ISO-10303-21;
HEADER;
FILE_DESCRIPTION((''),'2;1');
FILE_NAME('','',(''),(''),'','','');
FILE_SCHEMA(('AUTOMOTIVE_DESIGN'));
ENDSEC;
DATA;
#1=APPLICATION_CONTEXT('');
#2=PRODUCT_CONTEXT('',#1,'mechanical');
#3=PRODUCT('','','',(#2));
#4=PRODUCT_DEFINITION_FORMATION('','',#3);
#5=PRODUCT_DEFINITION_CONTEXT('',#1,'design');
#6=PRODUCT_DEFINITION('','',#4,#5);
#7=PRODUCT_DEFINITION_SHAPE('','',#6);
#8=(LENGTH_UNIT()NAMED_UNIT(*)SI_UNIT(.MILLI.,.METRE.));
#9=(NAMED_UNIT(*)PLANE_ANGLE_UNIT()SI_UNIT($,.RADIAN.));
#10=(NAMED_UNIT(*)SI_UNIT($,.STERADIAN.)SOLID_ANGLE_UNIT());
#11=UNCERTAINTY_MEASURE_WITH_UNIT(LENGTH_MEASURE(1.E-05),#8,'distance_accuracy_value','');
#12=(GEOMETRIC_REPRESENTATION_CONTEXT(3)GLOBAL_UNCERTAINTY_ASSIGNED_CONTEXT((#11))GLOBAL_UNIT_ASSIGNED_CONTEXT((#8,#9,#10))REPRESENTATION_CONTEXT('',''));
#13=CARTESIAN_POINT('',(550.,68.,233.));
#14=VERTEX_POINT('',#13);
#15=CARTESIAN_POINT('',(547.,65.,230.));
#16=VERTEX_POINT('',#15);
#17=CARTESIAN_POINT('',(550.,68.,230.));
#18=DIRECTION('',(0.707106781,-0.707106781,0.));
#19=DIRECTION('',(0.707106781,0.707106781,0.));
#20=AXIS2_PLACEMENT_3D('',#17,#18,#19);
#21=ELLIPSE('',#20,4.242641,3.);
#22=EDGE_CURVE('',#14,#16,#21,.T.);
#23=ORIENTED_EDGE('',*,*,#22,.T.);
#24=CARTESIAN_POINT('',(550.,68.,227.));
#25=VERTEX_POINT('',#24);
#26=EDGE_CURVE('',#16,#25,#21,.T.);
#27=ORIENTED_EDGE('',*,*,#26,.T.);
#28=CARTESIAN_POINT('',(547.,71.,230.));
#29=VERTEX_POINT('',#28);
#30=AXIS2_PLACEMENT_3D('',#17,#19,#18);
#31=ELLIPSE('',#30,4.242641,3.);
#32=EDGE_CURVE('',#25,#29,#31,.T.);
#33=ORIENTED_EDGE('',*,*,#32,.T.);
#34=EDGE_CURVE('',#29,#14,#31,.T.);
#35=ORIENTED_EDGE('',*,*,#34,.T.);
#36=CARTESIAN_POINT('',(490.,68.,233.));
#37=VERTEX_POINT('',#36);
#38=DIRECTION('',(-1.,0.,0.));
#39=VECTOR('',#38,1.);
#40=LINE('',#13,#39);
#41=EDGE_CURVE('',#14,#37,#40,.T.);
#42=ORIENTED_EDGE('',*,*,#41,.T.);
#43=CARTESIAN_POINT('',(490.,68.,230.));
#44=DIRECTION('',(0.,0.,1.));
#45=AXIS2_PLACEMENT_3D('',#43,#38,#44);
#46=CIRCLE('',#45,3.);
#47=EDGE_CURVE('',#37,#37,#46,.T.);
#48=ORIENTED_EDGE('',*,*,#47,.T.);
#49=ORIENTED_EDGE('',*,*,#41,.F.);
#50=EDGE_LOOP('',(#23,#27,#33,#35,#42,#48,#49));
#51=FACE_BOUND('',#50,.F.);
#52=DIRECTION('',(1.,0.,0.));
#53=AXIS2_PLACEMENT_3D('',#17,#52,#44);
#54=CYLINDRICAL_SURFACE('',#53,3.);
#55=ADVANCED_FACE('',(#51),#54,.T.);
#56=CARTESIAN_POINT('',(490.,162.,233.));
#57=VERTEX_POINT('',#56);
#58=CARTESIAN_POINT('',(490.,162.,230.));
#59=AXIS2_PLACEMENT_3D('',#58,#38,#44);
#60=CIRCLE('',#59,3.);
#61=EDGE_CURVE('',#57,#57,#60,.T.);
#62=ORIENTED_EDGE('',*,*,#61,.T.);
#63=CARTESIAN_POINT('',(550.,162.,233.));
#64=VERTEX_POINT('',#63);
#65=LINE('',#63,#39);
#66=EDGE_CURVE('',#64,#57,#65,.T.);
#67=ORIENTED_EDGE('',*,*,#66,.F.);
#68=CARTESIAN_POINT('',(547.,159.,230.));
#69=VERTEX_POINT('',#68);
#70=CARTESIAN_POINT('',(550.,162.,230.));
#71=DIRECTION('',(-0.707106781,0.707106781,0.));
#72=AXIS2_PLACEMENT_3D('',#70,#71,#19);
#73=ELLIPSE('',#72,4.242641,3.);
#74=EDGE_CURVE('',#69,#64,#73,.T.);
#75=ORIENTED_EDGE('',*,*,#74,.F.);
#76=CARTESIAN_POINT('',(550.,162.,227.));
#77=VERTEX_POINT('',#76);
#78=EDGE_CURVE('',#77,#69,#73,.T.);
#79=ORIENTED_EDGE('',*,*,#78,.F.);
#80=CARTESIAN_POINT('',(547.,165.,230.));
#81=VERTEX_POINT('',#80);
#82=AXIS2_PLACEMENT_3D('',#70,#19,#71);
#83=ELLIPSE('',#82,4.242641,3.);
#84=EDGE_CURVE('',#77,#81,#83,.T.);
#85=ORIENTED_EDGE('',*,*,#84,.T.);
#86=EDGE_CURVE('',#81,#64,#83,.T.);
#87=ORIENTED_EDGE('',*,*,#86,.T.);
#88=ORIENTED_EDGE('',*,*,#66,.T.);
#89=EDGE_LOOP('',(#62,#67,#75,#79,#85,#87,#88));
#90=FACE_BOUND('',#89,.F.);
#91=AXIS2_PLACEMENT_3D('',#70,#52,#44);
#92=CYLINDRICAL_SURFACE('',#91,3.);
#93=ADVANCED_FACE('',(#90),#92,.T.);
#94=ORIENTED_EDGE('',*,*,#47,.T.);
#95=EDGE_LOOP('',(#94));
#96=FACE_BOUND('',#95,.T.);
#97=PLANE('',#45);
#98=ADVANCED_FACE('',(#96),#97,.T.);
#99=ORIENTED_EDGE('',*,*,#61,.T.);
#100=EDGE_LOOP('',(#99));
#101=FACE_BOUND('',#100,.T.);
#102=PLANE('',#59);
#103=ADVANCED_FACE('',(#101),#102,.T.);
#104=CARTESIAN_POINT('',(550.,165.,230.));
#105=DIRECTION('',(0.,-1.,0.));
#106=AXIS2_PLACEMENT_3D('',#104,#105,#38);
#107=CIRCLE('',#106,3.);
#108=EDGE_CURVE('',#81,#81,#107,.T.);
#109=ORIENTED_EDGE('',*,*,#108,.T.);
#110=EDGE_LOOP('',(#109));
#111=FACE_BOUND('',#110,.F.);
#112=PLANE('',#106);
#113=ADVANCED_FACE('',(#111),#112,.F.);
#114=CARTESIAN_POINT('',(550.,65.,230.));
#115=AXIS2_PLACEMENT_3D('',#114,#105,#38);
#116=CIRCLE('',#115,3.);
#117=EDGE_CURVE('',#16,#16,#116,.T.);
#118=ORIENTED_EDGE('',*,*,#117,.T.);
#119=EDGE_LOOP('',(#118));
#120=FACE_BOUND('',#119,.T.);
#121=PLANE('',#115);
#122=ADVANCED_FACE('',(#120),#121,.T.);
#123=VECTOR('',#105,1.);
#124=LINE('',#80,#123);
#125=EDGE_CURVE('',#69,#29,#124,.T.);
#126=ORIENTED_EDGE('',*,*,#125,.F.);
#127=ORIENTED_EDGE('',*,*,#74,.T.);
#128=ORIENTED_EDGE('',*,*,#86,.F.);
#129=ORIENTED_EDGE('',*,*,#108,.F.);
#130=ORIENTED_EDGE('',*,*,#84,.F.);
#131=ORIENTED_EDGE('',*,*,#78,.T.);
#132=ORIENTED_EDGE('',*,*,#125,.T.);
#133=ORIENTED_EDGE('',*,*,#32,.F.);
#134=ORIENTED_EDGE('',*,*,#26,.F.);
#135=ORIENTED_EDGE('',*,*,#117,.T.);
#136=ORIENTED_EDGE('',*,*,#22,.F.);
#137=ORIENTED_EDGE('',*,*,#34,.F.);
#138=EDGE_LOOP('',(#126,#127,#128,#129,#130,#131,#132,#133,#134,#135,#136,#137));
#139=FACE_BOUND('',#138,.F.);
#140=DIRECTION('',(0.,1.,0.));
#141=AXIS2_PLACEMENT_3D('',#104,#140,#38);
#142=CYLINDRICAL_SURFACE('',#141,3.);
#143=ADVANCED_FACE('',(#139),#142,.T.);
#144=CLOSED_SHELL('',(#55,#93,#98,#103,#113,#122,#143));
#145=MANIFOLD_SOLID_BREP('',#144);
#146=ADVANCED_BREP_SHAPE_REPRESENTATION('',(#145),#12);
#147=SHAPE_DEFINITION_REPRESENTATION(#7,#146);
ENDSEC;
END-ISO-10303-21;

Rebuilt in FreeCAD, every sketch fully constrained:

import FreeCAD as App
import Part
import Sketcher
from FreeCAD import Vector

doc = App.newDocument("Part")
body = doc.addObject("PartDesign::Body", "Body")

# Sketch on XY plane
sketch1 = body.newObject("Sketcher::SketchObject", "Sketch")
sketch1.AttachmentSupport = (doc.getObject("XY_Plane"), [""])
sketch1.MapMode = "FlatFace"
sketch1.addGeometry(Part.Circle(Vector(0, 0, 0), Vector(0, 0, 1), 3), False)
sketch1.addConstraint([
    Sketcher.Constraint("Coincident", 0, 3, -1, 1),
    Sketcher.Constraint("Diameter", 0, 6.0),
])
pad1 = body.newObject("PartDesign::Pad", "Pad")
pad1.Profile = sketch1
pad1.Length = 60
body2 = doc.addObject("PartDesign::Body", "Body001")
doc.recompute()

body.Placement = App.Placement(Vector(0, 0, 0), App.Rotation(Vector(0, 1, 0), 90))
boolean = body2.newObject("PartDesign::Boolean", "Boolean")
boolean.Type = "Fuse"
boolean.addObjects([body])
body3 = doc.addObject("PartDesign::Body", "Body002")
doc.recompute()

body2.Placement = App.Placement(Vector(-50, -3, 0), App.Rotation(Vector(0, 0, 1), 0))
boolean2 = body3.newObject("PartDesign::Boolean", "Boolean001")
boolean2.Type = "Fuse"
boolean2.addObjects([body2])
body4 = doc.addObject("PartDesign::Body", "Body003")

# Sketch on XY plane
sketch2 = body4.newObject("Sketcher::SketchObject", "Sketch001")
sketch2.AttachmentSupport = (doc.getObject("XY_Plane003"), [""])
sketch2.MapMode = "FlatFace"
sketch2.addGeometry(Part.Circle(Vector(0, 0, 0), Vector(0, 0, 1), 3), False)
sketch2.addConstraint([
    Sketcher.Constraint("Coincident", 0, 3, -1, 1),
    Sketcher.Constraint("Diameter", 0, 6.0),
])
pad2 = body4.newObject("PartDesign::Pad", "Pad001")
pad2.Profile = sketch2
pad2.Length = 100
body5 = doc.addObject("PartDesign::Body", "Body004")
doc.recompute()

body4.Placement = App.Placement(Vector(0, 0, 0), App.Rotation(Vector(1, 0, 0), 90))
boolean3 = body5.newObject("PartDesign::Boolean", "Boolean002")
boolean3.Type = "Fuse"
boolean3.addObjects([body4])
body6 = doc.addObject("PartDesign::Body", "Body005")
doc.recompute()

body5.Placement = App.Placement(Vector(-50, 0, 0), App.Rotation(Vector(0, 0, 1), 0))
boolean4 = body6.newObject("PartDesign::Boolean", "Boolean003")
boolean4.Type = "Fuse"
boolean4.addObjects([body5])
doc.recompute()

boolean5 = body6.newObject("PartDesign::Boolean", "Boolean004")
boolean5.Type = "Fuse"
boolean5.addObjects([body3])
body7 = doc.addObject("PartDesign::Body", "Body006")

# Sketch on XY plane
sketch3 = body7.newObject("Sketcher::SketchObject", "Sketch002")
sketch3.AttachmentSupport = (doc.getObject("XY_Plane006"), [""])
sketch3.MapMode = "FlatFace"
sketch3.addGeometry(Part.Circle(Vector(0, 0, 0), Vector(0, 0, 1), 3), False)
sketch3.addConstraint([
    Sketcher.Constraint("Coincident", 0, 3, -1, 1),
    Sketcher.Constraint("Diameter", 0, 6.0),
])
pad3 = body7.newObject("PartDesign::Pad", "Pad002")
pad3.Profile = sketch3
pad3.Length = 60
body8 = doc.addObject("PartDesign::Body", "Body007")
doc.recompute()

body7.Placement = App.Placement(Vector(0, 0, 0), App.Rotation(Vector(0, 1, 0), 90))
boolean6 = body8.newObject("PartDesign::Boolean", "Boolean005")
boolean6.Type = "Fuse"
boolean6.addObjects([body7])
body9 = doc.addObject("PartDesign::Body", "Body008")
doc.recompute()

body8.Placement = App.Placement(Vector(-50, -97, 0), App.Rotation(Vector(0, 0, 1), 0))
boolean7 = body9.newObject("PartDesign::Boolean", "Boolean006")
boolean7.Type = "Fuse"
boolean7.addObjects([body8])
doc.recompute()

boolean8 = body9.newObject("PartDesign::Boolean", "Boolean007")
boolean8.Type = "Fuse"
boolean8.addObjects([body6])
body10 = doc.addObject("PartDesign::Body", "Body009")
doc.recompute()

body9.Placement = App.Placement(Vector(500, 165, 230), App.Rotation(Vector(0, 1, 0), 180))
boolean9 = body10.newObject("PartDesign::Boolean", "Boolean008")
boolean9.Type = "Fuse"
boolean9.addObjects([body9])

doc.recompute()
